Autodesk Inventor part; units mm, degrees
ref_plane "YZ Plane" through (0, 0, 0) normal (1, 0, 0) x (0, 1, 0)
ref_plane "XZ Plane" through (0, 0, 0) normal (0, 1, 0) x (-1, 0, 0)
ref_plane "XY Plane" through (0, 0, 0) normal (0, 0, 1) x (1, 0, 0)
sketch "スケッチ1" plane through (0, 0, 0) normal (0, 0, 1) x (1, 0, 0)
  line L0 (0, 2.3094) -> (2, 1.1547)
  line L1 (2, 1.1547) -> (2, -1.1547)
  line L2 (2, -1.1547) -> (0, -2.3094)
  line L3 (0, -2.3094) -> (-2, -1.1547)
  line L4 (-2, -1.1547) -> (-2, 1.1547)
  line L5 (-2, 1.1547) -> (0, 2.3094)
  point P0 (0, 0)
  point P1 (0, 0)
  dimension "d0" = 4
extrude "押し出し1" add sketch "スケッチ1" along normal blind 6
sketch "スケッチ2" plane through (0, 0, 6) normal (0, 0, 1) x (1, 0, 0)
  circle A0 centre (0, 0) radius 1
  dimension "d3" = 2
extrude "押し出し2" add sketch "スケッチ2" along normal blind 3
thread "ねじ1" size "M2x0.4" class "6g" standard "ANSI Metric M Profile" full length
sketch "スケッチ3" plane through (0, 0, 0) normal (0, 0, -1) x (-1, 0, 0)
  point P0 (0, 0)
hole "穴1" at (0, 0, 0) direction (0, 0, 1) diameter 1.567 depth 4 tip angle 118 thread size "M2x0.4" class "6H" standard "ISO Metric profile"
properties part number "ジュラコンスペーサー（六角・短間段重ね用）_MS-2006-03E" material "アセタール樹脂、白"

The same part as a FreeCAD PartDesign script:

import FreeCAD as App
import Part
import Sketcher
from FreeCAD import Vector
Q = App.Units.Quantity

doc = App.newDocument("Part")
body = doc.addObject("PartDesign::Body", "Body")

# Sketch on XY plane
sketch1 = body.newObject("Sketcher::SketchObject", "Sketch")
sketch1.AttachmentSupport = (doc.getObject("XY_Plane"), [""])
sketch1.MapMode = "FlatFace"
sketch1.addGeometry(Part.LineSegment(Vector(2, 1.1547, 0), Vector(0, 2.3094, 0)), False)
sketch1.addGeometry(Part.LineSegment(Vector(0, 2.3094, 0), Vector(-2, 1.1547, 0)), False)
sketch1.addGeometry(Part.LineSegment(Vector(-2, 1.1547, 0), Vector(-2, -1.1547, 0)), False)
sketch1.addGeometry(Part.LineSegment(Vector(-2, -1.1547, 0), Vector(0, -2.3094, 0)), False)
sketch1.addGeometry(Part.LineSegment(Vector(0, -2.3094, 0), Vector(2, -1.1547, 0)), False)
sketch1.addGeometry(Part.LineSegment(Vector(2, -1.1547, 0), Vector(2, 1.1547, 0)), False)
sketch1.addConstraint(Sketcher.Constraint("Coincident", 0, 2, 1, 1))
sketch1.addConstraint(Sketcher.Constraint("Coincident", 1, 2, 2, 1))
sketch1.addConstraint(Sketcher.Constraint("Coincident", 2, 2, 3, 1))
sketch1.addConstraint(Sketcher.Constraint("Coincident", 3, 2, 4, 1))
sketch1.addConstraint(Sketcher.Constraint("Coincident", 4, 2, 5, 1))
sketch1.addConstraint(Sketcher.Constraint("Coincident", 5, 2, 0, 1))
sketch1.addConstraint(Sketcher.Constraint("Vertical", 2))
sketch1.addConstraint(Sketcher.Constraint("Vertical", 5))
sketch1.addConstraint(Sketcher.Constraint("Symmetric", 0, 2, 3, 2, -1, 1))
sketch1.addConstraint(Sketcher.Constraint("Symmetric", 1, 2, 4, 2, -1, 1))
sketch1.addConstraint(Sketcher.Constraint("PointOnObject", 0, 2, -2))
sketch1.addConstraint(Sketcher.Constraint("Parallel", 0, 3))
sketch1.addConstraint(Sketcher.Constraint("Horizontal", 2, 2, 4, 2))
sketch1.addConstraint(Sketcher.Constraint("DistanceX", 2, 2, 4, 2, Q("4 mm")))
sketch1.addConstraint(Sketcher.Constraint("Angle", 0, Q("150 deg")))
sketch1.addConstraint(Sketcher.Constraint("DistanceY", 2, 2, 2, 1, Q("2.3094 mm")))
pad1 = body.newObject("PartDesign::Pad", "Pad")
pad1.Profile = sketch1
pad1.Length = 6

# Sketch on XY plane
sketch2 = body.newObject("Sketcher::SketchObject", "Sketch001")
sketch2.AttachmentSupport = (doc.getObject("XY_Plane"), [""])
sketch2.MapMode = "FlatFace"
sketch2.AttachmentOffset = App.Placement(Vector(0, 0, 6), App.Rotation())
sketch2.addGeometry(Part.Circle(Vector(0, 0, 0), Vector(0, 0, 1), 1), False)
sketch2.addConstraint(Sketcher.Constraint("Coincident", 0, 3, -1, 1))
sketch2.addConstraint(Sketcher.Constraint("Diameter", 0, Q("2 mm")))
pad2 = body.newObject("PartDesign::Pad", "Pad001")
pad2.Profile = sketch2
pad2.Length = 3

# Sketch on XY plane
sketch3 = body.newObject("Sketcher::SketchObject", "Sketch002")
sketch3.AttachmentSupport = (doc.getObject("XY_Plane"), [""])
sketch3.MapMode = "FlatFace"
sketch3.addGeometry(Part.Circle(Vector(0, 0, 0), Vector(0, 0, 1), 0.7835), False)
sketch3.addConstraint(Sketcher.Constraint("Coincident", 0, 3, -1, 1))
sketch3.addConstraint(Sketcher.Constraint("Diameter", 0, Q("1.567 mm")))
doc.recompute()
hole = body.newObject("PartDesign::Hole", "Hole")
hole.Profile = sketch3
hole.ThreadType = "None"
hole.Diameter = 1.567
hole.DepthType = "Dimension"
hole.Depth = 4
hole.DrillPoint = "Angled"
hole.DrillPointAngle = 118
hole.Reversed = True

doc.recompute()
